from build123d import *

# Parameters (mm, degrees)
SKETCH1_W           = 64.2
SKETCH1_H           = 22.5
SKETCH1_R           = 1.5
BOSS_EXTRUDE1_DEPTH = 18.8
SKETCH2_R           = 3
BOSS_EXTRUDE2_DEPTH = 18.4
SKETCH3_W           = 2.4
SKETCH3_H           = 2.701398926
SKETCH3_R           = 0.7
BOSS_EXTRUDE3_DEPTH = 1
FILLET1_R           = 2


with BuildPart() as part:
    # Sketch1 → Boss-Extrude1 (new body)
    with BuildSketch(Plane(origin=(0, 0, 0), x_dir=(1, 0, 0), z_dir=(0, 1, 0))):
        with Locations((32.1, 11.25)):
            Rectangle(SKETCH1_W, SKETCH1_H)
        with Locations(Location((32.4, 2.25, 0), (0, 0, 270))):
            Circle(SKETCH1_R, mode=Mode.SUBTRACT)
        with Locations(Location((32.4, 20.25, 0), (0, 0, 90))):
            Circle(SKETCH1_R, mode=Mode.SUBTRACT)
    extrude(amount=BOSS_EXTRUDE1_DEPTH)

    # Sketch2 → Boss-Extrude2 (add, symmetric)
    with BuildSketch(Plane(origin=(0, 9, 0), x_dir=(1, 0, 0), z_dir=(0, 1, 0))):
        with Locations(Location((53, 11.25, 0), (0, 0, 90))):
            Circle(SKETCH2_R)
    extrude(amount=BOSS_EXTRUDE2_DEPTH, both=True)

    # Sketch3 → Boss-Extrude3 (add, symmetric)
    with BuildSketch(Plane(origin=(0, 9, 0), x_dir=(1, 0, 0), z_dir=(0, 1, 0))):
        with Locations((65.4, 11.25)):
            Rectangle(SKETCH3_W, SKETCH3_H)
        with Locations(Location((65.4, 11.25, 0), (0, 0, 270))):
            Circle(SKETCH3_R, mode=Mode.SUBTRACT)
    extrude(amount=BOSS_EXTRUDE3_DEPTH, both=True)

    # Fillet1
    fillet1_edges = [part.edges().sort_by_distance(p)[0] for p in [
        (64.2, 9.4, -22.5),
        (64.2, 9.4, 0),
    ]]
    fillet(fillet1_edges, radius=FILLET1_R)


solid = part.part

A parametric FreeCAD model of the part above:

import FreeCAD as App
import Part
import Sketcher


def edges_at(feature, points):
    """Names of the edges that pass closest to the given points."""
    edges = feature.Shape.Edges
    near = lambda p: min(range(len(edges)), key=lambda i: edges[i].distToShape(Part.Vertex(*p))[0])
    return sorted({f"Edge{near(p) + 1}" for p in points})


def add_polygon(sketch, points):
    """Adds a closed chain of lines whose ends are joined by coincident constraints."""
    first, n = sketch.GeometryCount, len(points)
    for a, b in zip(points, points[1:] + points[:1]):
        sketch.addGeometry(Part.LineSegment(App.Vector(*a, 0), App.Vector(*b, 0)), False)
    for i in range(n):
        sketch.addConstraint(Sketcher.Constraint("Coincident", first + i, 2, first + (i + 1) % n, 1))

doc = App.newDocument("Part")
body = doc.addObject("PartDesign::Body", "Body")

# Sketch on XZ plane
sketch1 = body.newObject("Sketcher::SketchObject", "Sketch")
sketch1.AttachmentSupport = (doc.getObject("XZ_Plane"), [""])
sketch1.MapMode = "FlatFace"
add_polygon(sketch1, [(0, -22.5), (0, 0), (64.2, 0), (64.2, -22.5)])  # lines 0-3
sketch1.addGeometry(Part.Circle(App.Vector(32.4, -2.2, 0), App.Vector(0, 0, 1), 1.5), False)  # 4
sketch1.addGeometry(Part.Circle(App.Vector(32.4, -20.2, 0), App.Vector(0, 0, 1), 1.5), False)  # 5
sketch1.addConstraint(Sketcher.Constraint("Vertical", 0))
sketch1.addConstraint(Sketcher.Constraint("Horizontal", 1))
sketch1.addConstraint(Sketcher.Constraint("Vertical", 2))
sketch1.addConstraint(Sketcher.Constraint("Horizontal", 3))
sketch1.addConstraint(Sketcher.Constraint("Coincident", 0, 2, -1, 1))
sketch1.addConstraint(Sketcher.Constraint("Equal", 4, 5))
sketch1.addConstraint(Sketcher.Constraint("Vertical", 4, 3, 5, 3))
sketch1.addConstraint(Sketcher.Constraint("Diameter", 4, 3.0))
sketch1.addConstraint(Sketcher.Constraint("DistanceX", 1, 1, 1, 2, 64.2))
sketch1.addConstraint(Sketcher.Constraint("DistanceY", 0, 1, 0, 2, 22.5))
sketch1.addConstraint(Sketcher.Constraint("DistanceY", 5, 3, 4, 3, 18.0))
sketch1.addConstraint(Sketcher.Constraint("DistanceX", -1, 1, 4, 3, 32.4))
sketch1.addConstraint(Sketcher.Constraint("DistanceY", 4, 3, -1, 1, 2.25))
pad1 = body.newObject("PartDesign::Pad", "Pad")
pad1.Profile = sketch1
pad1.Length = 18.8
pad1.Reversed = True

# Sketch on XZ plane
sketch2 = body.newObject("Sketcher::SketchObject", "Sketch001")
sketch2.AttachmentSupport = (doc.getObject("XZ_Plane"), [""])
sketch2.MapMode = "FlatFace"
sketch2.AttachmentOffset = App.Placement(App.Vector(0, 0, -9), App.Rotation())
sketch2.addGeometry(Part.Circle(App.Vector(53, -11.2, 0), App.Vector(0, 0, 1), 3), False)
sketch2.addConstraint(Sketcher.Constraint("Diameter", 0, 6.0))
sketch2.addConstraint(Sketcher.Constraint("DistanceX", -1, 1, 0, 3, 53.0))
sketch2.addConstraint(Sketcher.Constraint("DistanceY", 0, 3, -1, 1, 11.25))
pad2 = body.newObject("PartDesign::Pad", "Pad001")
pad2.Profile = sketch2
pad2.Length = 36.8
pad2.Midplane = True

# Sketch on XZ plane
sketch3 = body.newObject("Sketcher::SketchObject", "Sketch002")
sketch3.AttachmentSupport = (doc.getObject("XZ_Plane"), [""])
sketch3.MapMode = "FlatFace"
sketch3.AttachmentOffset = App.Placement(App.Vector(0, 0, -9), App.Rotation())
add_polygon(sketch3, [(64.2, -12.6), (64.2, -9.9), (66.6, -9.9), (66.6, -12.6)])  # lines 0-3
sketch3.addGeometry(Part.Circle(App.Vector(65.4, -11.2, 0), App.Vector(0, 0, 1), 0.7), False)  # 4
sketch3.addConstraint(Sketcher.Constraint("Vertical", 0))
sketch3.addConstraint(Sketcher.Constraint("Horizontal", 1))
sketch3.addConstraint(Sketcher.Constraint("Vertical", 2))
sketch3.addConstraint(Sketcher.Constraint("Horizontal", 3))
sketch3.addConstraint(Sketcher.Constraint("Diameter", 4, 1.4))
sketch3.addConstraint(Sketcher.Constraint("DistanceX", 1, 1, 1, 2, 2.4))
sketch3.addConstraint(Sketcher.Constraint("DistanceX", -1, 1, 4, 3, 65.4))
sketch3.addConstraint(Sketcher.Constraint("DistanceX", -1, 1, 0, 2, 64.2))
sketch3.addConstraint(Sketcher.Constraint("DistanceY", 4, 3, -1, 1, 11.25))
sketch3.addConstraint(Sketcher.Constraint("DistanceY", 0, 1, 0, 2, 2.701399))
sketch3.addConstraint(Sketcher.Constraint("DistanceY", 0, 2, -1, 1, 9.899301))
pad3 = body.newObject("PartDesign::Pad", "Pad002")
pad3.Profile = sketch3
pad3.Length = 2
pad3.Midplane = True
doc.recompute()

fillet = body.newObject("PartDesign::Fillet", "Fillet")
fillet.Base = (pad3, edges_at(pad3, [(64.2, 9.4, -22.5), (64.2, 9.4, 0)]))
fillet.Radius = 2

doc.recompute()
